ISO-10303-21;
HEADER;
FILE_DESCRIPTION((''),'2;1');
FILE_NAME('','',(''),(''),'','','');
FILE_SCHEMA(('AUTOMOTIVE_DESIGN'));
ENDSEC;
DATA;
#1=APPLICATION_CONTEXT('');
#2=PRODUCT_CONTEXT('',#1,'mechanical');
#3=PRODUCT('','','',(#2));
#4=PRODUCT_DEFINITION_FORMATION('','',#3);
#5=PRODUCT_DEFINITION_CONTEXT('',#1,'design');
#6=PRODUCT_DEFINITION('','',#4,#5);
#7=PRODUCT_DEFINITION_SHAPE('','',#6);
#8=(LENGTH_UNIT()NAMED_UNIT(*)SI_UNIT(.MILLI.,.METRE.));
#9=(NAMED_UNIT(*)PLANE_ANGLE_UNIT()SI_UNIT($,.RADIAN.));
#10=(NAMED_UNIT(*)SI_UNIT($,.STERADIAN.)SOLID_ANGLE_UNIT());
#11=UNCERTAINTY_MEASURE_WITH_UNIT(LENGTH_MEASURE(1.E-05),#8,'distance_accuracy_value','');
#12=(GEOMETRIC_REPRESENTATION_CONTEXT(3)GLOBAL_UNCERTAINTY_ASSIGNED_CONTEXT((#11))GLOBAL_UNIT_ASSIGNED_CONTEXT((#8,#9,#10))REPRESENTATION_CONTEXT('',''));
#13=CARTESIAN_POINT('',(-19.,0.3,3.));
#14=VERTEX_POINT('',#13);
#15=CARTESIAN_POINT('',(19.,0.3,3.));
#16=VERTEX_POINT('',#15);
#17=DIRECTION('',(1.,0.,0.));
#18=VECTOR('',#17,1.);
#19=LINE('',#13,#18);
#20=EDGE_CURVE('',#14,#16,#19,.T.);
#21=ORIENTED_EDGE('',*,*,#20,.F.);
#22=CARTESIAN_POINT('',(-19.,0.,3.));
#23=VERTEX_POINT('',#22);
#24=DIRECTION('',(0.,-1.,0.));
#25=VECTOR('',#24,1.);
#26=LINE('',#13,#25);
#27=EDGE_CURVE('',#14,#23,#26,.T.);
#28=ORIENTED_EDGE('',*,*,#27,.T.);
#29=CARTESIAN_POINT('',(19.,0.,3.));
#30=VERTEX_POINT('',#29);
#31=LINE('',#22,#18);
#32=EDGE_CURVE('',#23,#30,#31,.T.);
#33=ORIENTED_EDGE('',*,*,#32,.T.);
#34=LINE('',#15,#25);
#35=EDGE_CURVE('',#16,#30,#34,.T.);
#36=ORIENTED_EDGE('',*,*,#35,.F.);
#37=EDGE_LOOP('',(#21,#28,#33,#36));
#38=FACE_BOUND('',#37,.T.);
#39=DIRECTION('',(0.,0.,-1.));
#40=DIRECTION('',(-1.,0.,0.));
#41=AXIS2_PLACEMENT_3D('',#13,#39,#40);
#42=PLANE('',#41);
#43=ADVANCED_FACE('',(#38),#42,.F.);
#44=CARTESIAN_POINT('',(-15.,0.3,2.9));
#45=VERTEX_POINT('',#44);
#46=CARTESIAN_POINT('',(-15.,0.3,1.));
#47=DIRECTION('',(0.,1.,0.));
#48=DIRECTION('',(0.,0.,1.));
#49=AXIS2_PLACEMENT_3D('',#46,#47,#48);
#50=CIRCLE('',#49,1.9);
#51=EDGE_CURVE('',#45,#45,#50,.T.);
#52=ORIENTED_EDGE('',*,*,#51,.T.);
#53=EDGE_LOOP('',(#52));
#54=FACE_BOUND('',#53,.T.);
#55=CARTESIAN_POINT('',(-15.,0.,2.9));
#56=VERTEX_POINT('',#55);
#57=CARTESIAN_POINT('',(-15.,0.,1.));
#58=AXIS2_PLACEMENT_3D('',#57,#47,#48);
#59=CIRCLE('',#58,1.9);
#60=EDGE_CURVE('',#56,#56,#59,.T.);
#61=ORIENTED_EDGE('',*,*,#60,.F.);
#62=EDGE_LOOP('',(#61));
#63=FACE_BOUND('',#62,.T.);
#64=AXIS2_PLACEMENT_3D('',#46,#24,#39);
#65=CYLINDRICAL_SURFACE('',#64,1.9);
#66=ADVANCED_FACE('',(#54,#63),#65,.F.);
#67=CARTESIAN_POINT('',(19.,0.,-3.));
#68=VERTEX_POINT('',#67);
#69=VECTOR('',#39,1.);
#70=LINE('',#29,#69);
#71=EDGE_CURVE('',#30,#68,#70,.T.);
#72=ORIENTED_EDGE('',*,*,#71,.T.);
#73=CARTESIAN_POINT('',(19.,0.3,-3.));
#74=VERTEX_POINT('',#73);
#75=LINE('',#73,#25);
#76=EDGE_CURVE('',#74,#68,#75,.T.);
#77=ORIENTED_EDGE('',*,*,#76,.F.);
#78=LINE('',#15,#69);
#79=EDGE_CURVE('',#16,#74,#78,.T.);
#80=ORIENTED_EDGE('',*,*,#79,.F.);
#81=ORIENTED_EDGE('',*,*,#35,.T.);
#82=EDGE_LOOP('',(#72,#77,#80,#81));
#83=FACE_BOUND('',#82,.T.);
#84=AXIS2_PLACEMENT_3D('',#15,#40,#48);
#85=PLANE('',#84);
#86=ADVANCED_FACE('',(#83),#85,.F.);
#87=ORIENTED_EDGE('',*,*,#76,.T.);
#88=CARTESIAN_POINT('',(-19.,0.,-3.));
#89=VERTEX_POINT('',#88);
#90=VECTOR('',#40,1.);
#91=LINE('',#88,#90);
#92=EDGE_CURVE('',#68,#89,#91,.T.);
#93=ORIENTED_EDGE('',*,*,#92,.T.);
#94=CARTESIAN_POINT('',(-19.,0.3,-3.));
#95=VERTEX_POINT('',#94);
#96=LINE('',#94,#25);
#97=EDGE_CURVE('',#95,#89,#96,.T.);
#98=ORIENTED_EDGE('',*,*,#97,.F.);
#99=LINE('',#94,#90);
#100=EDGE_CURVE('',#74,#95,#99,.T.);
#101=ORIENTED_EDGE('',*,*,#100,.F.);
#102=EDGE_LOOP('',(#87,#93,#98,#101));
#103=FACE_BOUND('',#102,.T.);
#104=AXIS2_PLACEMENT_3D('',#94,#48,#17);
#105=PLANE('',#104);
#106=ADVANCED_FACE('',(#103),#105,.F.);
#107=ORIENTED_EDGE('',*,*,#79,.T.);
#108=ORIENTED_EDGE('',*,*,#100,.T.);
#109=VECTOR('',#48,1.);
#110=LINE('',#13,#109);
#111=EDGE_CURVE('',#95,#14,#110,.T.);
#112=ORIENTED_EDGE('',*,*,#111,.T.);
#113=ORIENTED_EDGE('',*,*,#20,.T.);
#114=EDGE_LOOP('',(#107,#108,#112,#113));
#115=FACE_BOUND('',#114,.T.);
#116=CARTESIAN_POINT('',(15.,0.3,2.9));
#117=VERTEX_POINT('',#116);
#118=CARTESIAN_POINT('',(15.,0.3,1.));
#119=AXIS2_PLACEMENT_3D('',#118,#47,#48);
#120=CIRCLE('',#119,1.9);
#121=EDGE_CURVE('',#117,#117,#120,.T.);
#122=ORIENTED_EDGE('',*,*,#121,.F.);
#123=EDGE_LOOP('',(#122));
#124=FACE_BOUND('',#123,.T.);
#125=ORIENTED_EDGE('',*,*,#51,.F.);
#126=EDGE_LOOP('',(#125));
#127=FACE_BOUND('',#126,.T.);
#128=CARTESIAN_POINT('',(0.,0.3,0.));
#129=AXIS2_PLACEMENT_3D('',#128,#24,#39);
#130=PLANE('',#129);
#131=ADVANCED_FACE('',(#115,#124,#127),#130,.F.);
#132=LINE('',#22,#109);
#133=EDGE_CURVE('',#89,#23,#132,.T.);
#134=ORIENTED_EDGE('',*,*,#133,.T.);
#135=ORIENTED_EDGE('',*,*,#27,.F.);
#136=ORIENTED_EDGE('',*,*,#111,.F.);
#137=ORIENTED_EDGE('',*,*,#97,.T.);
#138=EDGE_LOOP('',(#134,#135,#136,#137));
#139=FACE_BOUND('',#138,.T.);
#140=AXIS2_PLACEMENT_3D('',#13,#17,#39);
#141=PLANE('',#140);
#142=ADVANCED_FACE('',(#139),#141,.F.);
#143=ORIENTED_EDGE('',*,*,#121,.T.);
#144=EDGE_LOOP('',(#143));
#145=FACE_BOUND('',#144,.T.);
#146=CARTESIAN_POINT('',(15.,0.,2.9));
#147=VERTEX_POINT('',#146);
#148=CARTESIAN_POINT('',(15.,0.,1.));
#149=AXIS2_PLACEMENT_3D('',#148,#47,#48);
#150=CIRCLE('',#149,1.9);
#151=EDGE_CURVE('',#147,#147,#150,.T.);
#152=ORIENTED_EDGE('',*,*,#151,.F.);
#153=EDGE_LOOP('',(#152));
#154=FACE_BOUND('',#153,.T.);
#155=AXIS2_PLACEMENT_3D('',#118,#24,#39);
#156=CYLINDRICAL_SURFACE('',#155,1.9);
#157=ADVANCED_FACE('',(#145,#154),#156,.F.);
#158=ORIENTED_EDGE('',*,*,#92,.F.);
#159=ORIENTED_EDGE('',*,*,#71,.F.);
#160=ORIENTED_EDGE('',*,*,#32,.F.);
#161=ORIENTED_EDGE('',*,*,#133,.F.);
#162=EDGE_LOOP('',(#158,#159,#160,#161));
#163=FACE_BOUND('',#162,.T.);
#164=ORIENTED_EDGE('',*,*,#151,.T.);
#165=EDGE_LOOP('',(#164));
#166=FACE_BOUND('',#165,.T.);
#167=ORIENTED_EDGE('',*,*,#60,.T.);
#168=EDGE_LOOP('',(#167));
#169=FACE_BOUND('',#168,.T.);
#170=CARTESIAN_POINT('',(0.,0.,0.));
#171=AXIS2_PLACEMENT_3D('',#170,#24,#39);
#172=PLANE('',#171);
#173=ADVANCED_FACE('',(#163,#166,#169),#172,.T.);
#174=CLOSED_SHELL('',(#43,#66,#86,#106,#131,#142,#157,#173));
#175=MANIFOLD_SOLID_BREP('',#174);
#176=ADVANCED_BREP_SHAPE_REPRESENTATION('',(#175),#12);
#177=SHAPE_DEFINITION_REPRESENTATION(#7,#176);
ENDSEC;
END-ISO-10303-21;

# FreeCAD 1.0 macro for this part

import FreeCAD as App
import Part
import Sketcher
from FreeCAD import Vector
Q = App.Units.Quantity


def add_polygon(sketch, points):
    """Adds a closed chain of lines whose ends are joined by coincident constraints."""
    first, n = sketch.GeometryCount, len(points)
    for a, b in zip(points, points[1:] + points[:1]):
        sketch.addGeometry(Part.LineSegment(App.Vector(*a, 0), App.Vector(*b, 0)), False)
    for i in range(n):
        sketch.addConstraint(Sketcher.Constraint("Coincident", first + i, 2, first + (i + 1) % n, 1))

doc = App.newDocument("Part")
body = doc.addObject("PartDesign::Body", "Body")

sketch1 = body.newObject("Sketcher::SketchObject", "Sketch")
sketch1.AttachmentSupport = (doc.getObject("XZ_Plane"), [""])
sketch1.MapMode = "FlatFace"
add_polygon(sketch1, [(-19, -3), (-19, 3), (19, 3), (19, -3)])
sketch1.addGeometry(Part.Circle(Vector(-15, 1, 0), Vector(0, 0, 1), 1.9), False)
sketch1.addGeometry(Part.Circle(Vector(15, 1, 0), Vector(0, 0, 1), 1.9), False)
sketch1.addConstraint(Sketcher.Constraint("Vertical", 0))
sketch1.addConstraint(Sketcher.Constraint("Horizontal", 1))
sketch1.addConstraint(Sketcher.Constraint("Vertical", 2))
sketch1.addConstraint(Sketcher.Constraint("Horizontal", 3))
sketch1.addConstraint(Sketcher.Constraint("Equal", 4, 5))
sketch1.addConstraint(Sketcher.Constraint("Symmetric", 0, 2, 2, 2, -1, 1))
sketch1.addConstraint(Sketcher.Constraint("Symmetric", 4, 3, 5, 3, -2))
sketch1.addConstraint(Sketcher.Constraint("Diameter", 4, Q("3.8 mm")))
sketch1.addConstraint(Sketcher.Constraint("DistanceX", 1, 1, 1, 2, Q("38 mm")))
sketch1.addConstraint(Sketcher.Constraint("DistanceY", 0, 1, 0, 2, Q("6 mm")))
sketch1.addConstraint(Sketcher.Constraint("DistanceX", 4, 3, -1, 1, Q("15 mm")))
sketch1.addConstraint(Sketcher.Constraint("DistanceY", -1, 1, 4, 3, Q("1 mm")))
pad1 = body.newObject("PartDesign::Pad", "Pad")
pad1.Profile = sketch1
pad1.Length = 0.3
pad1.Reversed = True

doc.recompute()
